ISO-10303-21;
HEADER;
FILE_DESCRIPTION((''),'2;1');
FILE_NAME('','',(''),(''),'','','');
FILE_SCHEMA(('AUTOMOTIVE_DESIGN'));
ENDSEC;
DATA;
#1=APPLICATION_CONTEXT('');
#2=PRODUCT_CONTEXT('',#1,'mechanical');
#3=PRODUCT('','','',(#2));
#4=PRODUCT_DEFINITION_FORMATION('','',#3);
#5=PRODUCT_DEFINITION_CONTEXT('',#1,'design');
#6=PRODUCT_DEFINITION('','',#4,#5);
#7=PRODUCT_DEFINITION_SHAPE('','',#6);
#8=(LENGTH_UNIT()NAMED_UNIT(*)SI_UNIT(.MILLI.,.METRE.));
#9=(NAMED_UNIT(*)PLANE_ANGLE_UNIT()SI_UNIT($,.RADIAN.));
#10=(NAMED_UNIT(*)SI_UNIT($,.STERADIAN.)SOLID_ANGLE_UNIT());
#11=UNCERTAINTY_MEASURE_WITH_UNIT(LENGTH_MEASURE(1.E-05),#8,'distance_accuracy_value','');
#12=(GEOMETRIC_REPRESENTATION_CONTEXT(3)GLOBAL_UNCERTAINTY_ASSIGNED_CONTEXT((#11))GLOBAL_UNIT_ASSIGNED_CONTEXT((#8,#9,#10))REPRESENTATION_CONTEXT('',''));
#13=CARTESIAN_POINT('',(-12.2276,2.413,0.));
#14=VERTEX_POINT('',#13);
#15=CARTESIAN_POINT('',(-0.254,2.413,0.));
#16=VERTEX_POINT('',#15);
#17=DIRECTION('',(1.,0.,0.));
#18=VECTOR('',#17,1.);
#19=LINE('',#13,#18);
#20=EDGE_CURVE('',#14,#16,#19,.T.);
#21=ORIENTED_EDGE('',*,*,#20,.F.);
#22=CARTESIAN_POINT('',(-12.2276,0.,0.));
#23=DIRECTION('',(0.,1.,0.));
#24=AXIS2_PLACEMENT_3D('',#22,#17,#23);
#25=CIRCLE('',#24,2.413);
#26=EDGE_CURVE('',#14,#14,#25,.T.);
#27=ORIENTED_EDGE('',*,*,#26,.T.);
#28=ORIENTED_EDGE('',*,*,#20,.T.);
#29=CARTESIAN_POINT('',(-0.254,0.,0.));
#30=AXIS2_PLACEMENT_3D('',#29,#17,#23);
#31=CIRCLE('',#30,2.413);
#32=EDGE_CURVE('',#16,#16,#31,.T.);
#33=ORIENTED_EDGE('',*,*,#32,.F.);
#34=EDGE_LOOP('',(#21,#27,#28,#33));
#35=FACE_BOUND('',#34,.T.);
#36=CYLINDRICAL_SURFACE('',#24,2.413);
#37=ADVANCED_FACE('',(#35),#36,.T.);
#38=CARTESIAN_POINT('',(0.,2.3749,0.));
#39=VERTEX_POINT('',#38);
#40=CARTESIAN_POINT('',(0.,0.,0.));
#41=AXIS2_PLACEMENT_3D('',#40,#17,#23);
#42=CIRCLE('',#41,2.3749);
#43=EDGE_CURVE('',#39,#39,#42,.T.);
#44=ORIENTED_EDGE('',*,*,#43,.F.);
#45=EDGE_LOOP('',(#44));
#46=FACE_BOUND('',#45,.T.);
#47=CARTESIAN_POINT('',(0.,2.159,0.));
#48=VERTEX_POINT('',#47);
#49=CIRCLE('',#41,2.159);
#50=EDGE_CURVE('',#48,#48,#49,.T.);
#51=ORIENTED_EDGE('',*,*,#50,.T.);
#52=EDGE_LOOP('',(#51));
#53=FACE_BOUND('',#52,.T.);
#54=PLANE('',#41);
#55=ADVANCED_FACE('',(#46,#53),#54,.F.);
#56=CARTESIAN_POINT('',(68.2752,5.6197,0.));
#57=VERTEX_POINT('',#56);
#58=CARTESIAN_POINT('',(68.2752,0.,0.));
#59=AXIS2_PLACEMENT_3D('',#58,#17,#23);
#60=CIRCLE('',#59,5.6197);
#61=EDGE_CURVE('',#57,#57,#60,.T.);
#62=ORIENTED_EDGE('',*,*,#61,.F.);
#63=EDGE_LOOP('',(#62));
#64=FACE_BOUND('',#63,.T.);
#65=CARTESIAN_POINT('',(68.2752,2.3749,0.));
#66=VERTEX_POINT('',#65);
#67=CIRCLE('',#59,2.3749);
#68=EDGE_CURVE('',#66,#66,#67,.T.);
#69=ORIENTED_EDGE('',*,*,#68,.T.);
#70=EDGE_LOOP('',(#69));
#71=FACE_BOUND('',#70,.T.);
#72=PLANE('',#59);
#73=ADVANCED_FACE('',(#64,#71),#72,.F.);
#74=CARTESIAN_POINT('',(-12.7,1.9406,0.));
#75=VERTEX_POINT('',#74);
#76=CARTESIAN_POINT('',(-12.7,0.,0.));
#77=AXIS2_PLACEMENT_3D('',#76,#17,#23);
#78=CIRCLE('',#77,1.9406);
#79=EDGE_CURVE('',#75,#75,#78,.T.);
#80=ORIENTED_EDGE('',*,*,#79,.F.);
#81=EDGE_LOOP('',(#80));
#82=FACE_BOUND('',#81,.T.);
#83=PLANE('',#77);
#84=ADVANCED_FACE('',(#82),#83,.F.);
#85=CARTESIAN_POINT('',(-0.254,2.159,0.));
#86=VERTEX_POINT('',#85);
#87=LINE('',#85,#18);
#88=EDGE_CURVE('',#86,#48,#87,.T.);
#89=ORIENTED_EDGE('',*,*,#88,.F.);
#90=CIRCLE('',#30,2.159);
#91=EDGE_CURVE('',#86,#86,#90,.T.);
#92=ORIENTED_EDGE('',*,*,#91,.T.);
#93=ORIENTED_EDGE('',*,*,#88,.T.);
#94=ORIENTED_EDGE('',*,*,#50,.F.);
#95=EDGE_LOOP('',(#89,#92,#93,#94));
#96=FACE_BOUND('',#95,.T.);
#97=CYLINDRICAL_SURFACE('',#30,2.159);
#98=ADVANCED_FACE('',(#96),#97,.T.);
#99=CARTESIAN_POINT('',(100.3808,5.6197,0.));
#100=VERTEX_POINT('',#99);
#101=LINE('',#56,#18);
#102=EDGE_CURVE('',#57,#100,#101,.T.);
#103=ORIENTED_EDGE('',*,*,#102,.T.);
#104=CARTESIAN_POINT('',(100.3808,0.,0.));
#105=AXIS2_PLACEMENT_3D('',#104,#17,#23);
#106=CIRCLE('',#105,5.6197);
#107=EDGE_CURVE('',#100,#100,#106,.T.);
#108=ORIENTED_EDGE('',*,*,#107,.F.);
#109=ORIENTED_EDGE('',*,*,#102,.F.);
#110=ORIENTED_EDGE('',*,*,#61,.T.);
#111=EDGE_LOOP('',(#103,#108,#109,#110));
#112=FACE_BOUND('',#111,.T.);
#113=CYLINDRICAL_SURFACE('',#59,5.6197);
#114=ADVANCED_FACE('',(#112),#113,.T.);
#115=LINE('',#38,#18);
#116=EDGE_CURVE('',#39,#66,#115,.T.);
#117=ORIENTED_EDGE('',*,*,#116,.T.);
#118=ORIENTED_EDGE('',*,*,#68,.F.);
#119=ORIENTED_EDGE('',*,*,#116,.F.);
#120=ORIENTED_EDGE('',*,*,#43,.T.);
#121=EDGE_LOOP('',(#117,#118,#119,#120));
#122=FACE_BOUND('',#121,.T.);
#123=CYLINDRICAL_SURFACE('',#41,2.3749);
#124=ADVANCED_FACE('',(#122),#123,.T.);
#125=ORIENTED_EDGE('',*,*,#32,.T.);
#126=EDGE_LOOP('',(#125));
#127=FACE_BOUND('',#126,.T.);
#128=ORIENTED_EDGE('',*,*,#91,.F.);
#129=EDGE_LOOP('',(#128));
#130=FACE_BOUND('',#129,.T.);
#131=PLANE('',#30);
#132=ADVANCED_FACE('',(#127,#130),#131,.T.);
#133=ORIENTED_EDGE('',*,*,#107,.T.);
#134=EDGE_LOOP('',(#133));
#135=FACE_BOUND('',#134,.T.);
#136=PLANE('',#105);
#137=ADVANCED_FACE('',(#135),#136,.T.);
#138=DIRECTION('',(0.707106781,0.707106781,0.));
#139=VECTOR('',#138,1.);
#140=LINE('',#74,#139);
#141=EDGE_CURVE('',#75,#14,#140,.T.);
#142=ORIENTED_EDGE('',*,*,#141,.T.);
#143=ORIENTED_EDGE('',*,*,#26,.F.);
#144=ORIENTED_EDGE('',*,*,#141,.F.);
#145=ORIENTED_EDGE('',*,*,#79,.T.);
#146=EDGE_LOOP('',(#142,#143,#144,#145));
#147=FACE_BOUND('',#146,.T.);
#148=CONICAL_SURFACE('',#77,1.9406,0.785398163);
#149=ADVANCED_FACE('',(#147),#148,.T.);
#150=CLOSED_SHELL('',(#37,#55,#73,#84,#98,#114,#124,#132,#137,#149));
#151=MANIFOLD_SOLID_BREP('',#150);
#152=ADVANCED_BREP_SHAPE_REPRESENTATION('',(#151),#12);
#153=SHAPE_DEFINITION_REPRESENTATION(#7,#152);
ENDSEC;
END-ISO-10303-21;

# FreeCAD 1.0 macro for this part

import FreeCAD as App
import Part
import Sketcher
Q = App.Units.Quantity


def add_polygon(sketch, points):
    """Adds a closed chain of lines whose ends are joined by coincident constraints."""
    first, n = sketch.GeometryCount, len(points)
    for a, b in zip(points, points[1:] + points[:1]):
        sketch.addGeometry(Part.LineSegment(App.Vector(*a, 0), App.Vector(*b, 0)), False)
    for i in range(n):
        sketch.addConstraint(Sketcher.Constraint("Coincident", first + i, 2, first + (i + 1) % n, 1))

doc = App.newDocument("Part")
body = doc.addObject("PartDesign::Body", "Body")

# Sketch on XY plane
sketch1 = body.newObject("Sketcher::SketchObject", "Sketch")
sketch1.AttachmentSupport = (doc.getObject("XY_Plane"), [""])
sketch1.MapMode = "FlatFace"
add_polygon(sketch1, [(0, 0), (100.3808, 0), (100.3808, 5.6197), (68.2752, 5.6197), (68.2752, 2.3749), (0, 2.3749)])  # lines 0-5
sketch1.addConstraint([
    Sketcher.Constraint("Horizontal", 0),
    Sketcher.Constraint("Vertical", 1),
    Sketcher.Constraint("Horizontal", 2),
    Sketcher.Constraint("Vertical", 3),
    Sketcher.Constraint("Horizontal", 4),
    Sketcher.Constraint("Vertical", 5),
    Sketcher.Constraint("Coincident", 5, 2, -1, 1),
    Sketcher.Constraint("DistanceX", 0, 1, 0, 2, Q("3.952 in")),
    Sketcher.Constraint("DistanceX", 2, 2, 2, 1, Q("1.264 in")),
    Sketcher.Constraint("DistanceY", 5, 2, 5, 1, Q("0.0935 in")),
    Sketcher.Constraint("DistanceY", 1, 1, 1, 2, 5.6197),
])
revolution = body.newObject("PartDesign::Revolution", "Revolution")
revolution.Profile = sketch1
revolution.ReferenceAxis = (sketch1, ["H_Axis"])
revolution.Angle = 360

# Sketch on XY plane
sketch2 = body.newObject("Sketcher::SketchObject", "Sketch001")
sketch2.AttachmentSupport = (doc.getObject("XY_Plane"), [""])
sketch2.MapMode = "FlatFace"
add_polygon(sketch2, [(-12.7, 0), (0, 0), (0, 2.413), (-12.2276, 2.413), (-12.7, 1.9406)])  # lines 0-4
sketch2.addConstraint([
    Sketcher.Constraint("Horizontal", 0),
    Sketcher.Constraint("Vertical", 1),
    Sketcher.Constraint("Horizontal", 2),
    Sketcher.Constraint("Vertical", 4),
    Sketcher.Constraint("Coincident", 0, 2, -1, 1),
    Sketcher.Constraint("DistanceX", 0, 1, 0, 2, Q("0.5 in")),
    Sketcher.Constraint("Angle", 3, Q("-135 deg")),
    Sketcher.Constraint("DistanceY", 1, 1, 1, 2, Q("0.095 in")),
    Sketcher.Constraint("DistanceX", 2, 2, 2, 1, Q("0.4814 in")),
])
revolution2 = body.newObject("PartDesign::Revolution", "Revolution001")
revolution2.Profile = sketch2
revolution2.ReferenceAxis = (sketch2, ["H_Axis"])
revolution2.Angle = 360

# Sketch on XY plane
sketch3 = body.newObject("Sketcher::SketchObject", "Sketch002")
sketch3.AttachmentSupport = (doc.getObject("XY_Plane"), [""])
sketch3.MapMode = "FlatFace"
add_polygon(sketch3, [(-0.254, 2.667), (-0.254, 2.159), (0, 2.159), (0, 2.667)])  # lines 0-3
sketch3.addConstraint([
    Sketcher.Constraint("Vertical", 0),
    Sketcher.Constraint("Horizontal", 1),
    Sketcher.Constraint("Vertical", 2),
    Sketcher.Constraint("Horizontal", 3),
    Sketcher.Constraint("PointOnObject", 1, 2, -2),
    Sketcher.Constraint("DistanceX", 1, 1, 1, 2, Q("0.01 in")),
    Sketcher.Constraint("DistanceY", 0, 2, 0, 1, Q("0.02 in")),
    Sketcher.Constraint("DistanceY", -1, 1, 0, 2, Q("0.085 in")),
])
groove = body.newObject("PartDesign::Groove", "Groove")
groove.Profile = sketch3
groove.ReferenceAxis = (sketch3, ["H_Axis"])
groove.Angle = 360

doc.recompute()
